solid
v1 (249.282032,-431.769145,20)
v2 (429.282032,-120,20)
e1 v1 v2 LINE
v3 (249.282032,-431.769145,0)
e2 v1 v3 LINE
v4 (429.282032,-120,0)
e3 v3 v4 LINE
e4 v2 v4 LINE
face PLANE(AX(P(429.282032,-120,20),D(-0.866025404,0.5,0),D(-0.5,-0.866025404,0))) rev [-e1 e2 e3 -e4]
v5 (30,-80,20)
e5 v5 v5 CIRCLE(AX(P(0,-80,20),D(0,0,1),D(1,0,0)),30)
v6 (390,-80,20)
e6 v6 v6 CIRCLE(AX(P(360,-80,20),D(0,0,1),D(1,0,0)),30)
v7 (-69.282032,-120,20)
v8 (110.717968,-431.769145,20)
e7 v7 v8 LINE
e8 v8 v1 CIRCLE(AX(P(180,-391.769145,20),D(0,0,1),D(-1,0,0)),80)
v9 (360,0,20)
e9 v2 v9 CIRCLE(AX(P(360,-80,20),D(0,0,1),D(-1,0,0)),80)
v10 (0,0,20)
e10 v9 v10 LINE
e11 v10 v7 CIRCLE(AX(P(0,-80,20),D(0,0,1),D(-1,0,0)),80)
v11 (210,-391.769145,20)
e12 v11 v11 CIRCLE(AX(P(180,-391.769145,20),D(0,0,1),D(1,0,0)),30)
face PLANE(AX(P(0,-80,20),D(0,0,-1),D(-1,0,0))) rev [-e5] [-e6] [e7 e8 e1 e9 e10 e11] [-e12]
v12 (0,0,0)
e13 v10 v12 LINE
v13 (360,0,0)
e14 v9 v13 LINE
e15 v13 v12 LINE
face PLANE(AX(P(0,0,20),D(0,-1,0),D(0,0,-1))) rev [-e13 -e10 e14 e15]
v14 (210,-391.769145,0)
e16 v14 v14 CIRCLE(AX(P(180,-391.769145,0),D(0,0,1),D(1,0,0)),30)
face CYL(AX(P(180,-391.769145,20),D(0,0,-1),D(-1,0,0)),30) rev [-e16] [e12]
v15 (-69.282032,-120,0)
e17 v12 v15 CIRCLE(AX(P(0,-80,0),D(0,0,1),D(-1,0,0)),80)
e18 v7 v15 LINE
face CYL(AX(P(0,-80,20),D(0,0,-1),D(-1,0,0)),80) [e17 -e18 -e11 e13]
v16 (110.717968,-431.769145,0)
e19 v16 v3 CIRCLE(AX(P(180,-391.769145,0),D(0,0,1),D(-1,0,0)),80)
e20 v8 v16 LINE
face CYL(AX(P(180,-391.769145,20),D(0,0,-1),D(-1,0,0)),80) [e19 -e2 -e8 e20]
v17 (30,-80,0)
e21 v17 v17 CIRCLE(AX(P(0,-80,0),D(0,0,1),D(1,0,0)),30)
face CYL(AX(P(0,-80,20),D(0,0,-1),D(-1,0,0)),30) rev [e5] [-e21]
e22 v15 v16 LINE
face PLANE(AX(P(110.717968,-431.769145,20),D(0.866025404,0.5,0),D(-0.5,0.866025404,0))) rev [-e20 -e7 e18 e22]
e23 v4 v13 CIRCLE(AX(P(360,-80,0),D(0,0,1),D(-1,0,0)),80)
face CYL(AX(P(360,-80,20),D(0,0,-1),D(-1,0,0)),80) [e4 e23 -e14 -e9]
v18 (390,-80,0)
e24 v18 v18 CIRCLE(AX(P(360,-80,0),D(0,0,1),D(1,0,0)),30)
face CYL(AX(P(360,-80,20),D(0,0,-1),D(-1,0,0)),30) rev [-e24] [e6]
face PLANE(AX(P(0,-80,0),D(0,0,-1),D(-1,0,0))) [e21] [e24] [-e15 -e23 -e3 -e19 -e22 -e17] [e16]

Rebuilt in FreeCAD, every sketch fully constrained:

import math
import FreeCAD as App
import Part
import Sketcher
Q = App.Units.Quantity

doc = App.newDocument("Part")
params = doc.addObject("Spreadsheet::Sheet", "Params")
for row, (alias, value) in enumerate([
    ("sketch1_diameter", "60 mm"),
    ("sketch1_radius", "80 mm"),
    ("sketch1_width", "360 mm"),
    ("pad1_length", "20 mm"),
], start=1):
    params.set(f"A{row}", alias)
    params.set(f"B{row}", "=" + value)
    params.setAlias(f"B{row}", alias)

body = doc.addObject("PartDesign::Body", "Body")

# Sketch on XY plane
sketch1 = body.newObject("Sketcher::SketchObject", "Sketch")
sketch1.AttachmentSupport = (doc.getObject("XY_Plane"), [""])
sketch1.MapMode = "FlatFace"
sketch1.addGeometry(Part.LineSegment(App.Vector(360, 0, 0), App.Vector(0, 0, 0)), False)
sketch1.addGeometry(Part.ArcOfCircle(Part.Circle(App.Vector(0, -80, 0), App.Vector(0, 0, 1), 80), math.radians(90), math.radians(210)), False)
sketch1.addGeometry(Part.LineSegment(App.Vector(-69, -120, 0), App.Vector(111, -432, 0)), False)
sketch1.addGeometry(Part.ArcOfCircle(Part.Circle(App.Vector(180, -392, 0), App.Vector(0, 0, 1), 80), math.radians(-150), math.radians(-30)), False)
sketch1.addGeometry(Part.LineSegment(App.Vector(249, -432, 0), App.Vector(429, -120, 0)), False)
sketch1.addGeometry(Part.ArcOfCircle(Part.Circle(App.Vector(360, -80, 0), App.Vector(0, 0, 1), 80), math.radians(-30), math.radians(90)), False)
sketch1.addGeometry(Part.Circle(App.Vector(180, -392, 0), App.Vector(0, 0, 1), 30), False)
sketch1.addGeometry(Part.Circle(App.Vector(360, -80, 0), App.Vector(0, 0, 1), 30), False)
sketch1.addGeometry(Part.Circle(App.Vector(0, -80, 0), App.Vector(0, 0, 1), 30), False)
sketch1.addConstraint(Sketcher.Constraint("Tangent", 0, 2, 1, 1))
sketch1.addConstraint(Sketcher.Constraint("Tangent", 1, 2, 2, 1))
sketch1.addConstraint(Sketcher.Constraint("Tangent", 2, 2, 3, 1))
sketch1.addConstraint(Sketcher.Constraint("Tangent", 3, 2, 4, 1))
sketch1.addConstraint(Sketcher.Constraint("Tangent", 4, 2, 5, 1))
sketch1.addConstraint(Sketcher.Constraint("Tangent", 5, 2, 0, 1))
sketch1.addConstraint(Sketcher.Constraint("Horizontal", 0))
sketch1.addConstraint(Sketcher.Constraint("Coincident", 0, 2, -1, 1))
sketch1.addConstraint(Sketcher.Constraint("Coincident", 6, 3, 3, 3))
sketch1.addConstraint(Sketcher.Constraint("Coincident", 7, 3, 5, 3))
sketch1.addConstraint(Sketcher.Constraint("Coincident", 8, 3, 1, 3))
sketch1.addConstraint(Sketcher.Constraint("Equal", 1, 3))
sketch1.addConstraint(Sketcher.Constraint("Equal", 3, 5))
sketch1.addConstraint(Sketcher.Constraint("Equal", 6, 7))
sketch1.addConstraint(Sketcher.Constraint("Equal", 7, 8))
sketch1.addConstraint(Sketcher.Constraint("Horizontal", 2, 2, 3, 2))
sketch1.addConstraint(Sketcher.Constraint("Diameter", 6, 60.0))
sketch1.addConstraint(Sketcher.Constraint("Radius", 1, 80.0))
sketch1.addConstraint(Sketcher.Constraint("DistanceX", 0, 2, 0, 1, 360.0))
sketch1.addConstraint(Sketcher.Constraint("Angle", 2, Q("-60 deg")))
sketch1.setExpression("Constraints[16]", "Params.sketch1_diameter")
sketch1.setExpression("Constraints[17]", "Params.sketch1_radius")
sketch1.setExpression("Constraints[18]", "Params.sketch1_width")
pad1 = body.newObject("PartDesign::Pad", "Pad")
pad1.Profile = sketch1
pad1.setExpression("Length", "Params.pad1_length")

doc.recompute()
